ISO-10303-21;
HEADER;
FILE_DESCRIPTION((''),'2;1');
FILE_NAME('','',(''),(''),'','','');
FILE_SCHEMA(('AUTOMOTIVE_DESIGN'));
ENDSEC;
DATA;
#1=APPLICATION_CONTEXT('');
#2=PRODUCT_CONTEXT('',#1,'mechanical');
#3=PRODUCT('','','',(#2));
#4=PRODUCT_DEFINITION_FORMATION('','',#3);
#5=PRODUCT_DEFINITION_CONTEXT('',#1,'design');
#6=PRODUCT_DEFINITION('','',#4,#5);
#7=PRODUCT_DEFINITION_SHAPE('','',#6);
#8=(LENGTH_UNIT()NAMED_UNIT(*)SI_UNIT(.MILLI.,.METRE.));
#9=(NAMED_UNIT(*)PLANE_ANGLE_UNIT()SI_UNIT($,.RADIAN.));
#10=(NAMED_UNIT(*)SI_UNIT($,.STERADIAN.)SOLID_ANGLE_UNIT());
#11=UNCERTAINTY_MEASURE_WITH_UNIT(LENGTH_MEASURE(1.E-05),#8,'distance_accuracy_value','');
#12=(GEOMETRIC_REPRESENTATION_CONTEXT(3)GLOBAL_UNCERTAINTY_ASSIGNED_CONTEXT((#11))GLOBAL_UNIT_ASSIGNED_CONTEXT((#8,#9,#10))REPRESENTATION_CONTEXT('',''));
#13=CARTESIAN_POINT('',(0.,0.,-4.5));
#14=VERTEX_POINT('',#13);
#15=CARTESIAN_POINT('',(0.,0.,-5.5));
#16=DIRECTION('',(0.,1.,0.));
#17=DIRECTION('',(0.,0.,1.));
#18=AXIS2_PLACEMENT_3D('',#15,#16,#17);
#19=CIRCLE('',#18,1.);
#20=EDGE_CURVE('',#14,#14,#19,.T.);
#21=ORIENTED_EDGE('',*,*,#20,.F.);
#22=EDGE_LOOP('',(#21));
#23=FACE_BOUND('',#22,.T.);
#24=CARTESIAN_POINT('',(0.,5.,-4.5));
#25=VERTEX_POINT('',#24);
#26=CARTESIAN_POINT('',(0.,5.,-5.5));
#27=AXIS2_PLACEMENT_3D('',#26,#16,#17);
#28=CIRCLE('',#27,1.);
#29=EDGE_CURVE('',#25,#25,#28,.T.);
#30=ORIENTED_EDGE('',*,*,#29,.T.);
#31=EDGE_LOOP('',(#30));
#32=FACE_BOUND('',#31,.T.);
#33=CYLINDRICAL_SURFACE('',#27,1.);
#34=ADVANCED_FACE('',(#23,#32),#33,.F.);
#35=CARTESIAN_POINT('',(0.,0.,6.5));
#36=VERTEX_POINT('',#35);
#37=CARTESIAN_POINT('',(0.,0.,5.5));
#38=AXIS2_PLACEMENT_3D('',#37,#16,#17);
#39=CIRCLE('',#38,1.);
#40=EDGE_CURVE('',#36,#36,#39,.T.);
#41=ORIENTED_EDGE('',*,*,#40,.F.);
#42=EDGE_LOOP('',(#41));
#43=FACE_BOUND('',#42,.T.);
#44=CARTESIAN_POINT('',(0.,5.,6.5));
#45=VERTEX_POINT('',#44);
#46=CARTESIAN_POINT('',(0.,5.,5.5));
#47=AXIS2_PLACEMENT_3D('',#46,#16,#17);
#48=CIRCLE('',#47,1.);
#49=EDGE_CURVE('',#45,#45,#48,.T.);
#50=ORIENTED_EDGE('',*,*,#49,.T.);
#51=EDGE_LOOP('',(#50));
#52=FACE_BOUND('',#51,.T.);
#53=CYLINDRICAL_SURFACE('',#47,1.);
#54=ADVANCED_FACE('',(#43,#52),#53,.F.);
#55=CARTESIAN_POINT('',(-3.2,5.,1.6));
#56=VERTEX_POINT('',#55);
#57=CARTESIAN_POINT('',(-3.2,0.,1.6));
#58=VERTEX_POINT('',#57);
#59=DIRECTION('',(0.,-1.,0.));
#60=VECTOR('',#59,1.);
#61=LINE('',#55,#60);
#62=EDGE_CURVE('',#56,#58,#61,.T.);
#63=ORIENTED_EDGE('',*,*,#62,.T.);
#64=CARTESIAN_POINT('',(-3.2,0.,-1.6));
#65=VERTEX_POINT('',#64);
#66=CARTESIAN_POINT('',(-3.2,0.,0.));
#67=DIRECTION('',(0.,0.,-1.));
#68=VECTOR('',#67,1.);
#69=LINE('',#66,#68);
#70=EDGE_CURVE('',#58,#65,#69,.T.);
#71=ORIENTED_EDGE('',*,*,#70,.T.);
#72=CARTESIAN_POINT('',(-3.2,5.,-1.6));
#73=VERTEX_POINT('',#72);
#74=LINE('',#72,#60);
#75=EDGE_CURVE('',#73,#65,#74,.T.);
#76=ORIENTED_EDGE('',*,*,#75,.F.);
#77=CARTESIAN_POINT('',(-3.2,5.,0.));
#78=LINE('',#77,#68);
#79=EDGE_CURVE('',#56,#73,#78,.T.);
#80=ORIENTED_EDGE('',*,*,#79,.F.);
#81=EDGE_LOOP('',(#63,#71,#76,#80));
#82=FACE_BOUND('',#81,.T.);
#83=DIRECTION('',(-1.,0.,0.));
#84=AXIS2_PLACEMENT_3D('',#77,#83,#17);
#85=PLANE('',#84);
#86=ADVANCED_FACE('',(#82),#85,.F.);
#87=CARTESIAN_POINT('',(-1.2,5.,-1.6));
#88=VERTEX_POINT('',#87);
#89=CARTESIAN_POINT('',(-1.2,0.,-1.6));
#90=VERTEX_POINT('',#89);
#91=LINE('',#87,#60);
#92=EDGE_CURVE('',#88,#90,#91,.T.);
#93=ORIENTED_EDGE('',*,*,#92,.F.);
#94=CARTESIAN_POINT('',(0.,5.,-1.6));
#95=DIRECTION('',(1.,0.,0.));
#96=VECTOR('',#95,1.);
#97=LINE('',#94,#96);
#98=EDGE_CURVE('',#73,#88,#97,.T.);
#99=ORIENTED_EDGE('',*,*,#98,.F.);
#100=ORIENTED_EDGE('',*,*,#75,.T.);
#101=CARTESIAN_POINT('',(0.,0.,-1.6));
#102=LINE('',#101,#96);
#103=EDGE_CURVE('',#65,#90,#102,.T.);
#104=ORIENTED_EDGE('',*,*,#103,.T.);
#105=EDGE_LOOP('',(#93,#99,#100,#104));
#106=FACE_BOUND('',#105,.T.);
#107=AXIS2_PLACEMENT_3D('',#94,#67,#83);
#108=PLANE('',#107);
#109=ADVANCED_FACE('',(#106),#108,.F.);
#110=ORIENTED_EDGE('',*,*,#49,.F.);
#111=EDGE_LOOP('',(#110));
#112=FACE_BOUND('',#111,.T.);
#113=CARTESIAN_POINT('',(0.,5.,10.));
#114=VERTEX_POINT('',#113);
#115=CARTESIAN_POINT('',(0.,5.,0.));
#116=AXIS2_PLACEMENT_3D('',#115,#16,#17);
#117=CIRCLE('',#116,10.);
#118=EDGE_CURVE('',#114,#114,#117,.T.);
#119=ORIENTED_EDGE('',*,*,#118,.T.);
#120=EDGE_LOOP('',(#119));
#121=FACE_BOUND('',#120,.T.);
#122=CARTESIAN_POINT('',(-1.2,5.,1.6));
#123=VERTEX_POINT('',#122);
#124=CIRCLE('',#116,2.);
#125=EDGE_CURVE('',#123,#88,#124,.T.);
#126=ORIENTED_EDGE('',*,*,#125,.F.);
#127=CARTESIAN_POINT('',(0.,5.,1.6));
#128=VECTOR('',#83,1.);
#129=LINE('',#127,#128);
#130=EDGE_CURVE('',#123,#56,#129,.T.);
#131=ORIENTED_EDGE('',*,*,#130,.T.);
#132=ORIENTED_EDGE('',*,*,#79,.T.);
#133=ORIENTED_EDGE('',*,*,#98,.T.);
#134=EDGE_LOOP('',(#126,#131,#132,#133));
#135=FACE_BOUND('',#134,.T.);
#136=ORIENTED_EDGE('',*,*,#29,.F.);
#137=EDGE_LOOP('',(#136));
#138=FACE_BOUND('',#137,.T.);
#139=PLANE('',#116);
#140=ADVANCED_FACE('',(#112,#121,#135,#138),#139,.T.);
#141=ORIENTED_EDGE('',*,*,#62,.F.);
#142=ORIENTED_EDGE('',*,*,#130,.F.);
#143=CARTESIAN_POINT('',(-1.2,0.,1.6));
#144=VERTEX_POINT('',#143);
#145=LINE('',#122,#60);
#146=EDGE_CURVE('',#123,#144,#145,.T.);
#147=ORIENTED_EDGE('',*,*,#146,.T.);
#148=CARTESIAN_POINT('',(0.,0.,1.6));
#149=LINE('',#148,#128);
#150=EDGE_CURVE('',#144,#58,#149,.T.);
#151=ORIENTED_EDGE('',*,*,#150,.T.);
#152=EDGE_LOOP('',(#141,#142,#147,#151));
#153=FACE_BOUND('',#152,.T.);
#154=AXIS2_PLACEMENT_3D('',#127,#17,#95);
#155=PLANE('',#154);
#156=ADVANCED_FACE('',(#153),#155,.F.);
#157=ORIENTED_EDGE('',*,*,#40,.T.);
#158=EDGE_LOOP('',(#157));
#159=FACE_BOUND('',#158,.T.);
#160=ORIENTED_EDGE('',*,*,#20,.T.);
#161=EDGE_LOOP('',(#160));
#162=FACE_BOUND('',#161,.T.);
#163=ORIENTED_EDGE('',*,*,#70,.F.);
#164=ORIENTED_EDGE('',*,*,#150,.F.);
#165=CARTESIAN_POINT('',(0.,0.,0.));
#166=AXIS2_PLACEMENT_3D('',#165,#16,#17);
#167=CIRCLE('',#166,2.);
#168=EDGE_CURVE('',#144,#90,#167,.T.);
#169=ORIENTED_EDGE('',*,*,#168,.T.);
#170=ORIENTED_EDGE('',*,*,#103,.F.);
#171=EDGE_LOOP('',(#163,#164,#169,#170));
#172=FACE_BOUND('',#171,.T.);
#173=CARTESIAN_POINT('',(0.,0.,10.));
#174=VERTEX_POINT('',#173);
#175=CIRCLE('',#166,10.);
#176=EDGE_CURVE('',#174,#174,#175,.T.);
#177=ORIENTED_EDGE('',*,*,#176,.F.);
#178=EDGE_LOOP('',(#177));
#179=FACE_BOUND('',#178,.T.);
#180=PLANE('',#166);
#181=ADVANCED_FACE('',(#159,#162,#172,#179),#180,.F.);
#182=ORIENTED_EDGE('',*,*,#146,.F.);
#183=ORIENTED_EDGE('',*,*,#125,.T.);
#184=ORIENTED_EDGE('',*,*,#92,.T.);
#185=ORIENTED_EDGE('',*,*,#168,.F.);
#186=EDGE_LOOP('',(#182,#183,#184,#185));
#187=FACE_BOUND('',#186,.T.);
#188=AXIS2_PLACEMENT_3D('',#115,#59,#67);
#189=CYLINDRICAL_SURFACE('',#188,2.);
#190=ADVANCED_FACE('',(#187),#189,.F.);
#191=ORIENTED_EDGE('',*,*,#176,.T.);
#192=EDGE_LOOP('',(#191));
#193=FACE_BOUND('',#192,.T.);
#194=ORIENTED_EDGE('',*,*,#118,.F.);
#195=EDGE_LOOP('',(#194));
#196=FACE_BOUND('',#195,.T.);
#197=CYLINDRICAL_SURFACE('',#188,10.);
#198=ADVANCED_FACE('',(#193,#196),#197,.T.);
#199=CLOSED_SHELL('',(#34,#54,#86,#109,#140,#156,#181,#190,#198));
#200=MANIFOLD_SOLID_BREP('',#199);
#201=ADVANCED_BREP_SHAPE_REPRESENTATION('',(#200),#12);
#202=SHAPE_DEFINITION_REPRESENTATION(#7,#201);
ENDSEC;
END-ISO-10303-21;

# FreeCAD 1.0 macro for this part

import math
import FreeCAD as App
import Part
import Sketcher

doc = App.newDocument("Part")
body = doc.addObject("PartDesign::Body", "Body")

# Sketch on XZ plane
sketch1 = body.newObject("Sketcher::SketchObject", "Sketch")
sketch1.AttachmentSupport = (doc.getObject("XZ_Plane"), [""])
sketch1.MapMode = "FlatFace"
sketch1.addGeometry(Part.Circle(App.Vector(0, 0, 0), App.Vector(0, 0, 1), 10), False)
sketch1.addGeometry(Part.ArcOfCircle(Part.Circle(App.Vector(0, 0, 0), App.Vector(0, 0, 1), 2), math.radians(-127), math.radians(127)), False)
sketch1.addGeometry(Part.LineSegment(App.Vector(-1.2, 1.6, 0), App.Vector(-3.2, 1.6, 0)), False)
sketch1.addGeometry(Part.LineSegment(App.Vector(-3.2, 1.6, 0), App.Vector(-3.2, -1.6, 0)), False)
sketch1.addGeometry(Part.LineSegment(App.Vector(-3.2, -1.6, 0), App.Vector(-1.2, -1.6, 0)), False)
sketch1.addConstraint(Sketcher.Constraint("Coincident", 1, 2, 2, 1))
sketch1.addConstraint(Sketcher.Constraint("Coincident", 2, 2, 3, 1))
sketch1.addConstraint(Sketcher.Constraint("Coincident", 3, 2, 4, 1))
sketch1.addConstraint(Sketcher.Constraint("Coincident", 4, 2, 1, 1))
sketch1.addConstraint(Sketcher.Constraint("Horizontal", 2))
sketch1.addConstraint(Sketcher.Constraint("Vertical", 3))
sketch1.addConstraint(Sketcher.Constraint("Horizontal", 4))
sketch1.addConstraint(Sketcher.Constraint("Coincident", 0, 3, -1, 1))
sketch1.addConstraint(Sketcher.Constraint("Coincident", 1, 3, -1, 1))
sketch1.addConstraint(Sketcher.Constraint("Vertical", 1, 2, 4, 2))
sketch1.addConstraint(Sketcher.Constraint("Diameter", 0, 20.0))
sketch1.addConstraint(Sketcher.Constraint("Radius", 1, 2.0))
sketch1.addConstraint(Sketcher.Constraint("DistanceX", 2, 2, 2, 1, 2.0))
sketch1.addConstraint(Sketcher.Constraint("DistanceY", 3, 2, 3, 1, 3.2))
pad1 = body.newObject("PartDesign::Pad", "Pad")
pad1.Profile = sketch1
pad1.Length = 5
pad1.Reversed = True

# Sketch on XZ plane
sketch2 = body.newObject("Sketcher::SketchObject", "Sketch001")
sketch2.AttachmentSupport = (doc.getObject("XZ_Plane"), [""])
sketch2.MapMode = "FlatFace"
sketch2.AttachmentOffset = App.Placement(App.Vector(0, 0, -5), App.Rotation())
sketch2.addGeometry(Part.Circle(App.Vector(0, 5.5, 0), App.Vector(0, 0, 1), 1), False)
sketch2.addGeometry(Part.Circle(App.Vector(0, -5.5, 0), App.Vector(0, 0, 1), 1), False)
sketch2.addConstraint(Sketcher.Constraint("Equal", 0, 1))
sketch2.addConstraint(Sketcher.Constraint("Symmetric", 0, 3, 1, 3, -1, 1))
sketch2.addConstraint(Sketcher.Constraint("PointOnObject", 0, 3, -2))
sketch2.addConstraint(Sketcher.Constraint("Diameter", 0, 2.0))
sketch2.addConstraint(Sketcher.Constraint("DistanceY", 1, 3, 0, 3, 11.0))
doc.recompute()
hole = body.newObject("PartDesign::Hole", "Hole")
hole.Profile = sketch2
hole.ThreadType = "None"
hole.Diameter = 2
hole.DepthType = "ThroughAll"
hole.Reversed = True

doc.recompute()
